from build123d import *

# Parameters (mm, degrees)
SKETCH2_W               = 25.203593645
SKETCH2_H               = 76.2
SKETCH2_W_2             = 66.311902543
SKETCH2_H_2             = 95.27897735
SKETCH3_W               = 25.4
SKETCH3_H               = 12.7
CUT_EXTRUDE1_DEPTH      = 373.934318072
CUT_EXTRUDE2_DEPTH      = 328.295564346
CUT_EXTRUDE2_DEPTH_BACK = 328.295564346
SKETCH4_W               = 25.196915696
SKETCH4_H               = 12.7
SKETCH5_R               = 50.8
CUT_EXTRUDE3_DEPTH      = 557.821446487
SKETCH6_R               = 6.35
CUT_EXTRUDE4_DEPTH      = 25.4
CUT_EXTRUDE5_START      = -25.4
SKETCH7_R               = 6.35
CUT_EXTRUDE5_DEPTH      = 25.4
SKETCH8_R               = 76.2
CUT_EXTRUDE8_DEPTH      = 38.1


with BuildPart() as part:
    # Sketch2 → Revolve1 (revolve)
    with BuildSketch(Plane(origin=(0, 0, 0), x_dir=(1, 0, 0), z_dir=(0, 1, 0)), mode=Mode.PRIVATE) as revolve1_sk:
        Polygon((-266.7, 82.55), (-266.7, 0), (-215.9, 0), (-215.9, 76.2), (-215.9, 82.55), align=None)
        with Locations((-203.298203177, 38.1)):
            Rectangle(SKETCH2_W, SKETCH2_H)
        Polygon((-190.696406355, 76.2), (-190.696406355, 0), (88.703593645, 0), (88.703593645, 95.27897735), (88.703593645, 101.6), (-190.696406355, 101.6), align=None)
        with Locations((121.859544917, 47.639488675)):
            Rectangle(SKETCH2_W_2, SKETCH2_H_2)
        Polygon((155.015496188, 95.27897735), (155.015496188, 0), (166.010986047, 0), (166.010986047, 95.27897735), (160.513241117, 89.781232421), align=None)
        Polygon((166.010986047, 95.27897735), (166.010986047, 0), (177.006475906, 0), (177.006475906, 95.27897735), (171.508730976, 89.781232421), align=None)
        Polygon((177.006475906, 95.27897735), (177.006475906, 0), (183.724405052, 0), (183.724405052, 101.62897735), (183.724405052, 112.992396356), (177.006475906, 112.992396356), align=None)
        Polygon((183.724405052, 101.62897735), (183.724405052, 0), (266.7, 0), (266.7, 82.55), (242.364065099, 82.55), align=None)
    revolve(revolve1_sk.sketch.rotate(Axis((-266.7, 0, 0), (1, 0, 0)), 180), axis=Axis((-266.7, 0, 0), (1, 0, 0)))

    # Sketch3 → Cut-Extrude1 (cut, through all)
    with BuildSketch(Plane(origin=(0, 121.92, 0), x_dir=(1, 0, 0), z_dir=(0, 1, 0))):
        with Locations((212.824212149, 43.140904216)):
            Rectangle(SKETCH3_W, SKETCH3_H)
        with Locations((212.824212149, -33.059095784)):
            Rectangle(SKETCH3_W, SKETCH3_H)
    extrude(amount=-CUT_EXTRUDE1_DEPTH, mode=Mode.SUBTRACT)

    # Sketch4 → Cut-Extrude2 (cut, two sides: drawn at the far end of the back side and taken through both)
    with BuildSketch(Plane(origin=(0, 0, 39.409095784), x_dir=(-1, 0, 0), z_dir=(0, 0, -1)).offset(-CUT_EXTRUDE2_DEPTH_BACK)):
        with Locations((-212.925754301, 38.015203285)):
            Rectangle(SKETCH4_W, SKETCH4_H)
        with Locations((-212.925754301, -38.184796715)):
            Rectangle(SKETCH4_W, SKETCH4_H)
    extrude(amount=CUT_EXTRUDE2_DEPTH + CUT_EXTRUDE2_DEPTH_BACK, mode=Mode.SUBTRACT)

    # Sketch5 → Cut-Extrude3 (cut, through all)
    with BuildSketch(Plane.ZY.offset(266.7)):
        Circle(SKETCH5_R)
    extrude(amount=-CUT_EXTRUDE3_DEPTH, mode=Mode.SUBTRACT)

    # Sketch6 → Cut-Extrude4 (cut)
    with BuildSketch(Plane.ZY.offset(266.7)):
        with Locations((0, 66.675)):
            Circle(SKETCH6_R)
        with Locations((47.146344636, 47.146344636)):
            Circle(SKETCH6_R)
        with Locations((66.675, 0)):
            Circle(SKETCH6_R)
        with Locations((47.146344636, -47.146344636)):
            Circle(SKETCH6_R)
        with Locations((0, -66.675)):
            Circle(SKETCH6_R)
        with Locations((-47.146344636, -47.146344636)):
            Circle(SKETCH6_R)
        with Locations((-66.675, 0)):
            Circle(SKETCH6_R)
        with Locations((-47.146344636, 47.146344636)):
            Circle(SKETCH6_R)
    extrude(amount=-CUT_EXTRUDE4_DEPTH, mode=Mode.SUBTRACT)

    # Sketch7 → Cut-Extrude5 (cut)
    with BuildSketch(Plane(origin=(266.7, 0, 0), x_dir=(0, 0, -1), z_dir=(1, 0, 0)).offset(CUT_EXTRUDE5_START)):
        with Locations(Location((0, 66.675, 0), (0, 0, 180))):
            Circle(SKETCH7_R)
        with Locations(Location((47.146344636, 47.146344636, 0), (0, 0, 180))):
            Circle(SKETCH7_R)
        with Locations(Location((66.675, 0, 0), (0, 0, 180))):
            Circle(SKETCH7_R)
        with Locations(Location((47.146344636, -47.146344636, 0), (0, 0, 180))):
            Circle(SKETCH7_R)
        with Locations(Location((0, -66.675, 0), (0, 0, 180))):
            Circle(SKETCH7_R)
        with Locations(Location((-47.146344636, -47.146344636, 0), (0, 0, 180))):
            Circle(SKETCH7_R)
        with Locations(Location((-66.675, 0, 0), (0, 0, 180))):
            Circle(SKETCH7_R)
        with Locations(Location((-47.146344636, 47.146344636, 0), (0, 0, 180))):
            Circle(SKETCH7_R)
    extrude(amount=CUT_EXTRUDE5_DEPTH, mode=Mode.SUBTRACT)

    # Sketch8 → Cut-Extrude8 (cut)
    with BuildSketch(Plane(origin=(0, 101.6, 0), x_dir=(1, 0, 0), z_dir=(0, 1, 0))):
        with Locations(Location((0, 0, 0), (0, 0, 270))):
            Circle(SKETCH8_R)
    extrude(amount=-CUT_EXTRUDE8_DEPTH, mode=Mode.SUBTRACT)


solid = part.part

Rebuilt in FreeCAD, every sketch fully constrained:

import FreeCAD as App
import Part
import Sketcher
Q = App.Units.Quantity

doc = App.newDocument("Part")
params = doc.addObject("Spreadsheet::Sheet", "Params")
for row, (alias, value) in enumerate([
    ("sketch1_width", "21 in"),
    ("sketch1_width2", "11 in"),
    ("sketch1_width3", "2 in"),
    ("sketch1_height", "1 in"),
    ("sketch1_height2", "3.25 in"),
    ("revolution_angle", "360 deg"),
    ("sketch2_width", "1 in"),
    ("sketch2_height", "0.5 in"),
    ("sketch3_height", "0.5 in"),
    ("sketch4_diameter", "4 in"),
    ("sketch5_diameter", "0.5 in"),
    ("pocket4_length", "1 in"),
    ("sketch6_diameter", "0.5 in"),
    ("pocket5_length", "1 in"),
    ("sketch7_diameter", "6 in"),
    ("pocket6_length", "1.5 in"),
], start=1):
    params.set(f"A{row}", alias)
    params.set(f"B{row}", "=" + value)
    params.setAlias(f"B{row}", alias)

body = doc.addObject("PartDesign::Body", "Body")

sketch1 = body.newObject("Sketcher::SketchObject", "Sketch")
sketch1.AttachmentSupport = (doc.getObject("XZ_Plane"), [""])
sketch1.MapMode = "FlatFace"
sketch1.addGeometry([
    Part.LineSegment(App.Vector(-266.7, -82.55, 0), App.Vector(-266.7, 0, 0)),
    Part.LineSegment(App.Vector(-266.7, 0, 0), App.Vector(266.7, 0, 0)),
    Part.LineSegment(App.Vector(266.7, 0, 0), App.Vector(266.7, -82.55, 0)),
    Part.LineSegment(App.Vector(266.7, -82.55, 0), App.Vector(242.364065, -82.55, 0)),
    Part.LineSegment(App.Vector(242.364065, -82.55, 0), App.Vector(183.724405, -101.628977, 0)),
    Part.LineSegment(App.Vector(183.724405, -101.628977, 0), App.Vector(183.724405, -112.992396, 0)),
    Part.LineSegment(App.Vector(183.724405, -112.992396, 0), App.Vector(177.006476, -112.992396, 0)),
    Part.LineSegment(App.Vector(177.006476, -112.992396, 0), App.Vector(177.006476, -95.278977, 0)),
    Part.LineSegment(App.Vector(177.006476, -95.278977, 0), App.Vector(171.508731, -89.781232, 0)),
    Part.LineSegment(App.Vector(171.508731, -89.781232, 0), App.Vector(166.010986, -95.278977, 0)),
    Part.LineSegment(App.Vector(166.010986, -95.278977, 0), App.Vector(160.513241, -89.781232, 0)),
    Part.LineSegment(App.Vector(160.513241, -89.781232, 0), App.Vector(155.015496, -95.278977, 0)),
    Part.LineSegment(App.Vector(155.015496, -95.278977, 0), App.Vector(88.703594, -95.278977, 0)),
    Part.LineSegment(App.Vector(88.703594, -95.278977, 0), App.Vector(88.703594, -101.6, 0)),
    Part.LineSegment(App.Vector(88.703594, -101.6, 0), App.Vector(-190.696406, -101.6, 0)),
    Part.LineSegment(App.Vector(-190.696406, -101.6, 0), App.Vector(-190.696406, -76.2, 0)),
    Part.LineSegment(App.Vector(-190.696406, -76.2, 0), App.Vector(-215.9, -76.2, 0)),
    Part.LineSegment(App.Vector(-215.9, -76.2, 0), App.Vector(-215.9, -82.55, 0)),
    Part.LineSegment(App.Vector(-215.9, -82.55, 0), App.Vector(-266.7, -82.55, 0)),
], False)
sketch1.addConstraint([
    Sketcher.Constraint("Coincident", 0, 2, 1, 1),
    Sketcher.Constraint("Coincident", 1, 2, 2, 1),
    Sketcher.Constraint("Coincident", 2, 2, 3, 1),
    Sketcher.Constraint("Coincident", 3, 2, 4, 1),
    Sketcher.Constraint("Coincident", 4, 2, 5, 1),
    Sketcher.Constraint("Coincident", 5, 2, 6, 1),
    Sketcher.Constraint("Coincident", 6, 2, 7, 1),
    Sketcher.Constraint("Coincident", 7, 2, 8, 1),
    Sketcher.Constraint("Coincident", 8, 2, 9, 1),
    Sketcher.Constraint("Coincident", 9, 2, 10, 1),
    Sketcher.Constraint("Coincident", 10, 2, 11, 1),
    Sketcher.Constraint("Coincident", 11, 2, 12, 1),
    Sketcher.Constraint("Coincident", 12, 2, 13, 1),
    Sketcher.Constraint("Coincident", 13, 2, 14, 1),
    Sketcher.Constraint("Coincident", 14, 2, 15, 1),
    Sketcher.Constraint("Coincident", 15, 2, 16, 1),
    Sketcher.Constraint("Coincident", 16, 2, 17, 1),
    Sketcher.Constraint("Coincident", 17, 2, 18, 1),
    Sketcher.Constraint("Coincident", 18, 2, 0, 1),
    Sketcher.Constraint("Vertical", 0),
    Sketcher.Constraint("Horizontal", 1),
    Sketcher.Constraint("Vertical", 2),
    Sketcher.Constraint("Horizontal", 3),
    Sketcher.Constraint("Vertical", 5),
    Sketcher.Constraint("Horizontal", 6),
    Sketcher.Constraint("Vertical", 7),
    Sketcher.Constraint("Horizontal", 12),
    Sketcher.Constraint("Vertical", 13),
    Sketcher.Constraint("Horizontal", 14),
    Sketcher.Constraint("Vertical", 15),
    Sketcher.Constraint("Horizontal", 16),
    Sketcher.Constraint("Vertical", 17),
    Sketcher.Constraint("Horizontal", 18),
    Sketcher.Constraint("Symmetric", 0, 2, 1, 2, -1, 1),
    Sketcher.Constraint("Perpendicular", 8, 9),
    Sketcher.Constraint("Perpendicular", 9, 10),
    Sketcher.Constraint("Perpendicular", 10, 11),
    Sketcher.Constraint("Horizontal", 7, 2, 9, 2),
    Sketcher.Constraint("Horizontal", 8, 2, 10, 2),
    Sketcher.Constraint("Horizontal", 9, 2, 11, 2),
    Sketcher.Constraint("Horizontal", 3, 2, 17, 2),
    Sketcher.Constraint("Equal", 8, 9),
    Sketcher.Constraint("DistanceX", 1, 1, 1, 2, Q("21 in")),
    Sketcher.Constraint("DistanceX", 14, 2, 14, 1, Q("11 in")),
    Sketcher.Constraint("DistanceX", 18, 2, 18, 1, Q("2 in")),
    Sketcher.Constraint("DistanceY", 15, 1, 15, 2, Q("1 in")),
    Sketcher.Constraint("DistanceY", 13, 2, -1, 1, Q("4 in")),
    Sketcher.Constraint("DistanceY", 0, 1, 0, 2, Q("3.25 in")),
    Sketcher.Constraint("DistanceY", 4, 2, 7, 2, Q("0.25 in")),
    Sketcher.Constraint("DistanceX", 6, 2, 6, 1, Q("6.717929 mm")),
    Sketcher.Constraint("DistanceY", 5, 2, 5, 1, Q("11.363419 mm")),
    Sketcher.Constraint("DistanceX", 3, 2, 3, 1, Q("24.335935 mm")),
    Sketcher.Constraint("DistanceX", 12, 2, 12, 1, Q("66.311903 mm")),
    Sketcher.Constraint("DistanceX", 16, 2, 16, 1, Q("25.203594 mm")),
    Sketcher.Constraint("DistanceY", 13, 2, 13, 1, Q("6.321023 mm")),
    Sketcher.Constraint("DistanceX", -1, 1, 8, 2, Q("171.508731 mm")),
])
sketch1.setExpression("Constraints[42]", "Params.sketch1_width")
sketch1.setExpression("Constraints[43]", "Params.sketch1_width2")
sketch1.setExpression("Constraints[44]", "Params.sketch1_width3")
sketch1.setExpression("Constraints[45]", "Params.sketch1_height")
sketch1.setExpression("Constraints[47]", "Params.sketch1_height2")
revolution = body.newObject("PartDesign::Revolution", "Revolution")
revolution.Profile = sketch1
revolution.ReferenceAxis = (sketch1, ["H_Axis"])
revolution.setExpression("Angle", "Params.revolution_angle")

sketch2 = body.newObject("Sketcher::SketchObject", "Sketch001")
sketch2.AttachmentSupport = (doc.getObject("XZ_Plane"), [""])
sketch2.MapMode = "FlatFace"
sketch2.AttachmentOffset = App.Placement(App.Vector(0, 0, -4.8 * 25.4), App.Rotation())
sketch2.addGeometry([
    Part.LineSegment(App.Vector(200.124212, -49.490904, 0), App.Vector(200.124212, -36.790904, 0)),
    Part.LineSegment(App.Vector(200.124212, -36.790904, 0), App.Vector(225.524212, -36.790904, 0)),
    Part.LineSegment(App.Vector(225.524212, -36.790904, 0), App.Vector(225.524212, -49.490904, 0)),
    Part.LineSegment(App.Vector(225.524212, -49.490904, 0), App.Vector(200.124212, -49.490904, 0)),
    Part.LineSegment(App.Vector(200.124212, 26.709096, 0), App.Vector(200.124212, 39.409096, 0)),
    Part.LineSegment(App.Vector(200.124212, 39.409096, 0), App.Vector(225.524212, 39.409096, 0)),
    Part.LineSegment(App.Vector(225.524212, 39.409096, 0), App.Vector(225.524212, 26.709096, 0)),
    Part.LineSegment(App.Vector(225.524212, 26.709096, 0), App.Vector(200.124212, 26.709096, 0)),
], False)
sketch2.addConstraint([
    Sketcher.Constraint("Coincident", 0, 2, 1, 1),
    Sketcher.Constraint("Coincident", 1, 2, 2, 1),
    Sketcher.Constraint("Coincident", 2, 2, 3, 1),
    Sketcher.Constraint("Coincident", 3, 2, 0, 1),
    Sketcher.Constraint("Coincident", 4, 2, 5, 1),
    Sketcher.Constraint("Coincident", 5, 2, 6, 1),
    Sketcher.Constraint("Coincident", 6, 2, 7, 1),
    Sketcher.Constraint("Coincident", 7, 2, 4, 1),
    Sketcher.Constraint("Vertical", 0),
    Sketcher.Constraint("Horizontal", 1),
    Sketcher.Constraint("Vertical", 2),
    Sketcher.Constraint("Horizontal", 3),
    Sketcher.Constraint("Vertical", 4),
    Sketcher.Constraint("Horizontal", 5),
    Sketcher.Constraint("Vertical", 6),
    Sketcher.Constraint("Horizontal", 7),
    Sketcher.Constraint("Vertical", 3, 2, 4, 2),
    Sketcher.Constraint("Vertical", 2, 2, 5, 2),
    Sketcher.Constraint("Equal", 2, 4),
    Sketcher.Constraint("DistanceX", 1, 1, 1, 2, Q("1 in")),
    Sketcher.Constraint("DistanceY", 0, 1, 0, 2, Q("0.5 in")),
    Sketcher.Constraint("DistanceY", 0, 2, 4, 2, Q("3 in")),
    Sketcher.Constraint("DistanceX", -1, 1, 0, 2, Q("200.124212 mm")),
    Sketcher.Constraint("DistanceY", 0, 2, -1, 1, Q("36.790904 mm")),
])
sketch2.setExpression("Constraints[19]", "Params.sketch2_width")
sketch2.setExpression("Constraints[20]", "Params.sketch2_height")
pocket1 = body.newObject("PartDesign::Pocket", "Pocket")
pocket1.Profile = sketch2
pocket1.Type = "ThroughAll"
pocket1.Reversed = True

sketch3 = body.newObject("Sketcher::SketchObject", "Sketch002")
sketch3.AttachmentSupport = (doc.getObject("XY_Plane"), [""])
sketch3.MapMode = "FlatFace"
sketch3.AttachmentOffset = App.Placement(App.Vector(0, 0, 39.409096), App.Rotation())
sketch3.addGeometry([
    Part.LineSegment(App.Vector(225.524212, 44.365203, 0), App.Vector(225.524212, 31.665203, 0)),
    Part.LineSegment(App.Vector(225.524212, 31.665203, 0), App.Vector(200.327296, 31.665203, 0)),
    Part.LineSegment(App.Vector(200.327296, 31.665203, 0), App.Vector(200.327296, 44.365203, 0)),
    Part.LineSegment(App.Vector(200.327296, 44.365203, 0), App.Vector(225.524212, 44.365203, 0)),
    Part.LineSegment(App.Vector(225.524212, -31.834797, 0), App.Vector(225.524212, -44.534797, 0)),
    Part.LineSegment(App.Vector(225.524212, -44.534797, 0), App.Vector(200.327296, -44.534797, 0)),
    Part.LineSegment(App.Vector(200.327296, -44.534797, 0), App.Vector(200.327296, -31.834797, 0)),
    Part.LineSegment(App.Vector(200.327296, -31.834797, 0), App.Vector(225.524212, -31.834797, 0)),
], False)
sketch3.addConstraint([
    Sketcher.Constraint("Coincident", 0, 2, 1, 1),
    Sketcher.Constraint("Coincident", 1, 2, 2, 1),
    Sketcher.Constraint("Coincident", 2, 2, 3, 1),
    Sketcher.Constraint("Coincident", 3, 2, 0, 1),
    Sketcher.Constraint("Coincident", 4, 2, 5, 1),
    Sketcher.Constraint("Coincident", 5, 2, 6, 1),
    Sketcher.Constraint("Coincident", 6, 2, 7, 1),
    Sketcher.Constraint("Coincident", 7, 2, 4, 1),
    Sketcher.Constraint("Vertical", 0),
    Sketcher.Constraint("Horizontal", 1),
    Sketcher.Constraint("Vertical", 2),
    Sketcher.Constraint("Horizontal", 3),
    Sketcher.Constraint("Vertical", 4),
    Sketcher.Constraint("Horizontal", 5),
    Sketcher.Constraint("Vertical", 6),
    Sketcher.Constraint("Horizontal", 7),
    Sketcher.Constraint("Vertical", 3, 2, 4, 2),
    Sketcher.Constraint("Vertical", 2, 2, 5, 2),
    Sketcher.Constraint("Equal", 2, 4),
    Sketcher.Constraint("DistanceY", 0, 2, 0, 1, Q("0.5 in")),
    Sketcher.Constraint("DistanceY", 4, 2, 0, 2, Q("3 in")),
    Sketcher.Constraint("DistanceX", 1, 2, 1, 1, Q("25.196916 mm")),
    Sketcher.Constraint("DistanceX", -1, 1, 0, 2, Q("225.524212 mm")),
    Sketcher.Constraint("DistanceY", -1, 1, 0, 2, Q("31.665203 mm")),
])
sketch3.setExpression("Constraints[19]", "Params.sketch3_height")
pocket2 = body.newObject("PartDesign::Pocket", "Pocket001")
pocket2.Profile = sketch3
pocket2.Type = "ThroughAll"
pocket2.Midplane = True

sketch4 = body.newObject("Sketcher::SketchObject", "Sketch003")
sketch4.AttachmentSupport = (doc.getObject("YZ_Plane"), [""])
sketch4.MapMode = "FlatFace"
sketch4.AttachmentOffset = App.Placement(App.Vector(0, 0, -10.5 * 25.4), App.Rotation())
sketch4.addGeometry(Part.Circle(App.Vector(0, 0, 0), App.Vector(0, 0, 1), 50.8), False)
sketch4.addConstraint([
    Sketcher.Constraint("Coincident", 0, 3, -1, 1),
    Sketcher.Constraint("Diameter", 0, Q("4 in")),
])
sketch4.setExpression("Constraints[1]", "Params.sketch4_diameter")
pocket3 = body.newObject("PartDesign::Pocket", "Pocket002")
pocket3.Profile = sketch4
pocket3.Type = "ThroughAll"
pocket3.Reversed = True

sketch5 = body.newObject("Sketcher::SketchObject", "Sketch004")
sketch5.AttachmentSupport = (doc.getObject("YZ_Plane"), [""])
sketch5.MapMode = "FlatFace"
sketch5.AttachmentOffset = App.Placement(App.Vector(0, 0, -10.5 * 25.4), App.Rotation())
sketch5.addGeometry([
    Part.Circle(App.Vector(66.675, 0, 0), App.Vector(0, 0, 1), 6.35),
    Part.Circle(App.Vector(47.146345, 47.146345, 0), App.Vector(0, 0, 1), 6.35),
    Part.Circle(App.Vector(0, 66.675, 0), App.Vector(0, 0, 1), 6.35),
    Part.Circle(App.Vector(-47.146345, 47.146345, 0), App.Vector(0, 0, 1), 6.35),
    Part.Circle(App.Vector(-66.675, 0, 0), App.Vector(0, 0, 1), 6.35),
    Part.Circle(App.Vector(-47.146345, -47.146345, 0), App.Vector(0, 0, 1), 6.35),
    Part.Circle(App.Vector(0, -66.675, 0), App.Vector(0, 0, 1), 6.35),
    Part.Circle(App.Vector(47.146345, -47.146345, 0), App.Vector(0, 0, 1), 6.35),
], False)
sketch5.addConstraint([
    Sketcher.Constraint("Equal", 0, 1),
    Sketcher.Constraint("Equal", 1, 2),
    Sketcher.Constraint("Equal", 2, 3),
    Sketcher.Constraint("Equal", 3, 4),
    Sketcher.Constraint("Equal", 4, 5),
    Sketcher.Constraint("Equal", 5, 6),
    Sketcher.Constraint("Equal", 6, 7),
    Sketcher.Constraint("Symmetric", 0, 3, 4, 3, -1, 1),
    Sketcher.Constraint("Symmetric", 1, 3, 5, 3, -1, 1),
    Sketcher.Constraint("Symmetric", 2, 3, 6, 3, -1, 1),
    Sketcher.Constraint("Symmetric", 3, 3, 7, 3, -1, 1),
    Sketcher.Constraint("Symmetric", 1, 3, 3, 3, -2),
    Sketcher.Constraint("PointOnObject", 0, 3, -1),
    Sketcher.Constraint("PointOnObject", 2, 3, -2),
    Sketcher.Constraint("Diameter", 0, Q("0.5 in")),
    Sketcher.Constraint("DistanceX", 4, 3, 0, 3, Q("5.25 in")),
    Sketcher.Constraint("DistanceY", -1, 1, 2, 3, Q("2.625 in")),
    Sketcher.Constraint("DistanceX", 3, 3, 1, 3, Q("94.292689 mm")),
    Sketcher.Constraint("DistanceY", 5, 3, 3, 3, Q("94.292689 mm")),
])
sketch5.setExpression("Constraints[14]", "Params.sketch5_diameter")
pocket4 = body.newObject("PartDesign::Pocket", "Pocket003")
pocket4.Profile = sketch5
pocket4.setExpression("Length", "Params.pocket4_length")
pocket4.Reversed = True

sketch6 = body.newObject("Sketcher::SketchObject", "Sketch005")
sketch6.AttachmentSupport = (doc.getObject("YZ_Plane"), [""])
sketch6.MapMode = "FlatFace"
sketch6.AttachmentOffset = App.Placement(App.Vector(0, 0, 9.5 * 25.4), App.Rotation())
sketch6.addGeometry([
    Part.Circle(App.Vector(66.675, 0, 0), App.Vector(0, 0, 1), 6.35),
    Part.Circle(App.Vector(47.146345, -47.146345, 0), App.Vector(0, 0, 1), 6.35),
    Part.Circle(App.Vector(0, -66.675, 0), App.Vector(0, 0, 1), 6.35),
    Part.Circle(App.Vector(-47.146345, -47.146345, 0), App.Vector(0, 0, 1), 6.35),
    Part.Circle(App.Vector(-66.675, 0, 0), App.Vector(0, 0, 1), 6.35),
    Part.Circle(App.Vector(-47.146345, 47.146345, 0), App.Vector(0, 0, 1), 6.35),
    Part.Circle(App.Vector(0, 66.675, 0), App.Vector(0, 0, 1), 6.35),
    Part.Circle(App.Vector(47.146345, 47.146345, 0), App.Vector(0, 0, 1), 6.35),
], False)
sketch6.addConstraint([
    Sketcher.Constraint("Equal", 0, 1),
    Sketcher.Constraint("Equal", 1, 2),
    Sketcher.Constraint("Equal", 2, 3),
    Sketcher.Constraint("Equal", 3, 4),
    Sketcher.Constraint("Equal", 4, 5),
    Sketcher.Constraint("Equal", 5, 6),
    Sketcher.Constraint("Equal", 6, 7),
    Sketcher.Constraint("Symmetric", 0, 3, 4, 3, -1, 1),
    Sketcher.Constraint("Symmetric", 1, 3, 5, 3, -1, 1),
    Sketcher.Constraint("Symmetric", 2, 3, 6, 3, -1, 1),
    Sketcher.Constraint("Symmetric", 3, 3, 7, 3, -1, 1),
    Sketcher.Constraint("Symmetric", 1, 3, 3, 3, -2),
    Sketcher.Constraint("PointOnObject", 0, 3, -1),
    Sketcher.Constraint("PointOnObject", 2, 3, -2),
    Sketcher.Constraint("Diameter", 0, Q("0.5 in")),
    Sketcher.Constraint("DistanceX", 4, 3, 0, 3, Q("5.25 in")),
    Sketcher.Constraint("DistanceY", 2, 3, -1, 1, Q("2.625 in")),
    Sketcher.Constraint("DistanceX", 3, 3, 1, 3, Q("94.292689 mm")),
    Sketcher.Constraint("DistanceY", 3, 3, 5, 3, Q("94.292689 mm")),
])
sketch6.setExpression("Constraints[14]", "Params.sketch6_diameter")
pocket5 = body.newObject("PartDesign::Pocket", "Pocket004")
pocket5.Profile = sketch6
pocket5.setExpression("Length", "Params.pocket5_length")
pocket5.Reversed = True

sketch7 = body.newObject("Sketcher::SketchObject", "Sketch006")
sketch7.AttachmentSupport = (doc.getObject("XZ_Plane"), [""])
sketch7.MapMode = "FlatFace"
sketch7.AttachmentOffset = App.Placement(App.Vector(0, 0, -4 * 25.4), App.Rotation())
sketch7.addGeometry(Part.Circle(App.Vector(0, 0, 0), App.Vector(0, 0, 1), 76.2), False)
sketch7.addConstraint([
    Sketcher.Constraint("Coincident", 0, 3, -1, 1),
    Sketcher.Constraint("Diameter", 0, Q("6 in")),
])
sketch7.setExpression("Constraints[1]", "Params.sketch7_diameter")
pocket6 = body.newObject("PartDesign::Pocket", "Pocket005")
pocket6.Profile = sketch7
pocket6.setExpression("Length", "Params.pocket6_length")
pocket6.Reversed = True

doc.recompute()
